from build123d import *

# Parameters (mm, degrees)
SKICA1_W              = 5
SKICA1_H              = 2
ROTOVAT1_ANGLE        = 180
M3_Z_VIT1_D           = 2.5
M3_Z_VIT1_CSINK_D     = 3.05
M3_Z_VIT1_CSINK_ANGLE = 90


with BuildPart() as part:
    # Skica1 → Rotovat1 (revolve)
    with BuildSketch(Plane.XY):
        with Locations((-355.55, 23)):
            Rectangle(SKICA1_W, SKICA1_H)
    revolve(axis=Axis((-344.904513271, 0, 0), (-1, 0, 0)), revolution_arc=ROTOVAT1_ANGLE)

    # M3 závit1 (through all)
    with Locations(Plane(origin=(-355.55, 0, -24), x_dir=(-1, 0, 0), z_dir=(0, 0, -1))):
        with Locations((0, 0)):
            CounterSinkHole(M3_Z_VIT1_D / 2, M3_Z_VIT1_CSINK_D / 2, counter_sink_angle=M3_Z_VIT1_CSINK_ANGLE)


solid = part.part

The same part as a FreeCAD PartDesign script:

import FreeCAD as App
import Part
import Sketcher

V = App.Vector
Q = App.Units.Quantity


def add_polygon(sketch, points):
    """Adds a closed chain of lines whose ends are joined by coincident constraints."""
    first, n = sketch.GeometryCount, len(points)
    for a, b in zip(points, points[1:] + points[:1]):
        sketch.addGeometry(Part.LineSegment(App.Vector(*a, 0), App.Vector(*b, 0)), False)
    for i in range(n):
        sketch.addConstraint(Sketcher.Constraint("Coincident", first + i, 2, first + (i + 1) % n, 1))

doc = App.newDocument("Part")
body = doc.addObject("PartDesign::Body", "Body")

# Sketch on XY plane
sketch1 = body.newObject("Sketcher::SketchObject", "Sketch")
sketch1.AttachmentSupport = (doc.getObject("XY_Plane"), [""])
sketch1.MapMode = "FlatFace"
add_polygon(sketch1, [(-358.1, 24), (-358.1, 22), (-353.1, 22), (-353.1, 24)])  # lines 0-3
sketch1.addConstraint([
    Sketcher.Constraint("Vertical", 0),
    Sketcher.Constraint("Horizontal", 1),
    Sketcher.Constraint("Vertical", 2),
    Sketcher.Constraint("Horizontal", 3),
    Sketcher.Constraint("DistanceX", 1, 1, 1, 2, Q("5 mm")),
    Sketcher.Constraint("DistanceY", 0, 2, 0, 1, Q("2 mm")),
    Sketcher.Constraint("DistanceY", -1, 1, 0, 2, Q("22 mm")),
    Sketcher.Constraint("DistanceX", 0, 2, -1, 1, Q("358.05 mm")),
])
revolution = body.newObject("PartDesign::Revolution", "Revolution")
revolution.Profile = sketch1
revolution.ReferenceAxis = (sketch1, ["H_Axis"])
revolution.Angle = 180
revolution.Reversed = True

# Sketch on XY plane
sketch2 = body.newObject("Sketcher::SketchObject", "Sketch001")
sketch2.AttachmentSupport = (doc.getObject("XY_Plane"), [""])
sketch2.MapMode = "FlatFace"
sketch2.AttachmentOffset = App.Placement(V(0, 0, -24), App.Rotation())
sketch2.addGeometry(Part.Circle(V(-355.6, 0, 0), V(0, 0, 1), 1.2), False)
sketch2.addConstraint([
    Sketcher.Constraint("PointOnObject", 0, 3, -1),
    Sketcher.Constraint("Diameter", 0, Q("2.5 mm")),
    Sketcher.Constraint("DistanceX", 0, 3, -1, 1, Q("355.55 mm")),
])
doc.recompute()
hole = body.newObject("PartDesign::Hole", "Hole")
hole.Profile = sketch2
hole.ThreadType = "None"
hole.Diameter = 2.5
hole.DepthType = "ThroughAll"
hole.HoleCutType = "Countersink"
hole.HoleCutDiameter = 3.05
hole.HoleCutCountersinkAngle = 90
hole.Reversed = True

doc.recompute()
